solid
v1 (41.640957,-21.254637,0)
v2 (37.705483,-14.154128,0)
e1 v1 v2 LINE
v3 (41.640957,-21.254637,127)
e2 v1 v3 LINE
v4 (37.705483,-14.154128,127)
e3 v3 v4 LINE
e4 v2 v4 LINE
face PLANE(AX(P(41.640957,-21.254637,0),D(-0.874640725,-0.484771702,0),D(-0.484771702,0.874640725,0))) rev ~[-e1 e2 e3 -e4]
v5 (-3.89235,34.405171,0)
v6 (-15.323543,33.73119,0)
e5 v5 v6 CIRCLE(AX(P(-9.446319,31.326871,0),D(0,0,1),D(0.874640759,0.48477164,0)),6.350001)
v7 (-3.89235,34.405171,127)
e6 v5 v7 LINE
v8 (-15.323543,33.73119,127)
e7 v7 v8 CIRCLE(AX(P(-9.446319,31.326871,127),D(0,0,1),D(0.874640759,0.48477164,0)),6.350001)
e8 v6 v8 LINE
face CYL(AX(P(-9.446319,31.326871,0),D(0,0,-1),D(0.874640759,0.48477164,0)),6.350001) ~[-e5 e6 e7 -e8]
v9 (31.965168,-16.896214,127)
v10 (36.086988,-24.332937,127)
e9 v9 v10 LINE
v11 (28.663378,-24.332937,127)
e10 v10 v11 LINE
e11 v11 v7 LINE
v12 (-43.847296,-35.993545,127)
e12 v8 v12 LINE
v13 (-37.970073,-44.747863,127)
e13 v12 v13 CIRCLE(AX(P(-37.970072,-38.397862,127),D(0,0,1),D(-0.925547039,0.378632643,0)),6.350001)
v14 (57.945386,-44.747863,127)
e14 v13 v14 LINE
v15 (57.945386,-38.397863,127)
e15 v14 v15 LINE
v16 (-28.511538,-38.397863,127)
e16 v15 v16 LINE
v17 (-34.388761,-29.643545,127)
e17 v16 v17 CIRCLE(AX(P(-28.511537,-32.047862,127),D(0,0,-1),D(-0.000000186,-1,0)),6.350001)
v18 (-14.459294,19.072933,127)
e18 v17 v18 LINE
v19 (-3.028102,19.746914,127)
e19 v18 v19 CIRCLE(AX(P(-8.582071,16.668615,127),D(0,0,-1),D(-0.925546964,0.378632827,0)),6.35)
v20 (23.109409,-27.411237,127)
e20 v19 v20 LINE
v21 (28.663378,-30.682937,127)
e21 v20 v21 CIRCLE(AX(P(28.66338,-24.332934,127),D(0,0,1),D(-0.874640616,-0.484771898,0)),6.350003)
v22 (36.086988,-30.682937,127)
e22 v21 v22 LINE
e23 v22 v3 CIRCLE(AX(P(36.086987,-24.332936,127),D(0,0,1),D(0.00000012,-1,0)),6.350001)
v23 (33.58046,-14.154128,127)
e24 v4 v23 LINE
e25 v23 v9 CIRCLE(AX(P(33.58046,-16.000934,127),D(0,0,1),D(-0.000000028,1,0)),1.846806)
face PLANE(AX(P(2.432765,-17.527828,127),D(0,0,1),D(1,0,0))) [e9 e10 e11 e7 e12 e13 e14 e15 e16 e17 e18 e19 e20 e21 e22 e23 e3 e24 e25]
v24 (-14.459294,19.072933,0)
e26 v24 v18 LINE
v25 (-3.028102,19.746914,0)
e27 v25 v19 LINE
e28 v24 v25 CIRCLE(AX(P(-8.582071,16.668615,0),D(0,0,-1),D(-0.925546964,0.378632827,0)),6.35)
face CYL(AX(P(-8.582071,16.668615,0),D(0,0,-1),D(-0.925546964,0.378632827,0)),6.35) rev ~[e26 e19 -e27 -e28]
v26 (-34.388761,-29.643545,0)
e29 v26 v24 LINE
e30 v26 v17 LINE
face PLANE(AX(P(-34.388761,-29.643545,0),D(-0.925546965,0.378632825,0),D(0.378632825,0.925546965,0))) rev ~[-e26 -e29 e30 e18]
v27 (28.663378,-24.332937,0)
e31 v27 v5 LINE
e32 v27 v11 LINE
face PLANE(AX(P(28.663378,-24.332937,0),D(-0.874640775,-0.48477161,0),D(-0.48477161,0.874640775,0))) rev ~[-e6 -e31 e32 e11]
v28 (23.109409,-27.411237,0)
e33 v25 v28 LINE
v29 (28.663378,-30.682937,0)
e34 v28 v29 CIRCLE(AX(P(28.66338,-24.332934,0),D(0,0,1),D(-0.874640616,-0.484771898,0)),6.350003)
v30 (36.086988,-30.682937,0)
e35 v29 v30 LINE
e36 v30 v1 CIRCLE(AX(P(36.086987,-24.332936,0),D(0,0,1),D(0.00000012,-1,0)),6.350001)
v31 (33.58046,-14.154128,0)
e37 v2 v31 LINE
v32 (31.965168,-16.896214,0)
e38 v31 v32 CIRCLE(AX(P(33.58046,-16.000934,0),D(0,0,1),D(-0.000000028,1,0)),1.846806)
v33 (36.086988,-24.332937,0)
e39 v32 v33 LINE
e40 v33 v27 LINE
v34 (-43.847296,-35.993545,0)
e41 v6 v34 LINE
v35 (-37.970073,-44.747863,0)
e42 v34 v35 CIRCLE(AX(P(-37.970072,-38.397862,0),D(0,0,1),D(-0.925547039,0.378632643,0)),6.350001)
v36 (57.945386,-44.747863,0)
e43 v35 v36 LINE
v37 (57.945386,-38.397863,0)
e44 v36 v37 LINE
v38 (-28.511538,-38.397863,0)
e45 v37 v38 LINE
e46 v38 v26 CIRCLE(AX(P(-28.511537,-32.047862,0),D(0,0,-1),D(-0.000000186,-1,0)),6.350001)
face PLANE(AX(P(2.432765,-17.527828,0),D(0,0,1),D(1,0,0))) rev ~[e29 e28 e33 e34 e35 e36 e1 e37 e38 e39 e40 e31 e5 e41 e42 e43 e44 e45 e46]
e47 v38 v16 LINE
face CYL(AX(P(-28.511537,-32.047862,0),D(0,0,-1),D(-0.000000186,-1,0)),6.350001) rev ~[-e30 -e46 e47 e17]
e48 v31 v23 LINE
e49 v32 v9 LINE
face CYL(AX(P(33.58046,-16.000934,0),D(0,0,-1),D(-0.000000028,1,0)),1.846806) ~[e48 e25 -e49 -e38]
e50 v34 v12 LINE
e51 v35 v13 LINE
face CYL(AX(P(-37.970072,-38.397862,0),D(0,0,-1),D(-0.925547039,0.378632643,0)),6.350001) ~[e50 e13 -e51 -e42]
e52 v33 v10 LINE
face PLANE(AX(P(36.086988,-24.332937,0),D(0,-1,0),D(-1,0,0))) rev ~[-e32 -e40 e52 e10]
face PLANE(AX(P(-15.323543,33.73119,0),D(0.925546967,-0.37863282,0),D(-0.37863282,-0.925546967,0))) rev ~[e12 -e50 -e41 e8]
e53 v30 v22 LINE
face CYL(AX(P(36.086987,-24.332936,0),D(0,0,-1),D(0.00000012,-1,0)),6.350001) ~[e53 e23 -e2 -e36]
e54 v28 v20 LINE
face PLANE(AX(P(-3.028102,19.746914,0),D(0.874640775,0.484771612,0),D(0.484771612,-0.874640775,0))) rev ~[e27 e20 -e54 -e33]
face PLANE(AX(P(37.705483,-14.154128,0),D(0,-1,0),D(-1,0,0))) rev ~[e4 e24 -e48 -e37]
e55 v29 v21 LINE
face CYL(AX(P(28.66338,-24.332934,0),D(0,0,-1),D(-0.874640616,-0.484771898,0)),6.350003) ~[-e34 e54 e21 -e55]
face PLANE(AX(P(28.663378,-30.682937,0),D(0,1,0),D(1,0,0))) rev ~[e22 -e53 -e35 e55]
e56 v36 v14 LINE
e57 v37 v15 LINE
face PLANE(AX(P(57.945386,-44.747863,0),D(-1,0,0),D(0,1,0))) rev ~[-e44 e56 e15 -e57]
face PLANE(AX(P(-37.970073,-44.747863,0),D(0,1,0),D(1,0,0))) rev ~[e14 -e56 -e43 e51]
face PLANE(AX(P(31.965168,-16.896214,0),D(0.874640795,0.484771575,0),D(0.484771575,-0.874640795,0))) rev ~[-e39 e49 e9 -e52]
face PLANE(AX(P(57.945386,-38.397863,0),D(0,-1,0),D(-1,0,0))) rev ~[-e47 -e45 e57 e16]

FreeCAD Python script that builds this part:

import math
import FreeCAD as App
import Part
import Sketcher

V = App.Vector
Q = App.Units.Quantity

doc = App.newDocument("Part")
body = doc.addObject("PartDesign::Body", "Body")

# Sketch on XY plane
sketch1 = body.newObject("Sketcher::SketchObject", "Sketch")
sketch1.AttachmentSupport = (doc.getObject("XY_Plane"), [""])
sketch1.MapMode = "FlatFace"
sketch1.addGeometry([
    Part.LineSegment(V(-37.970073, -44.747863, 0), V(57.945386, -44.747863, 0)),  # 0
    Part.LineSegment(V(57.945386, -44.747863, 0), V(57.945386, -38.397863, 0)),  # 1
    Part.LineSegment(V(57.945386, -38.397863, 0), V(-28.511538, -38.397863, 0)),  # 2
    Part.ArcOfCircle(Part.Circle(V(-28.511537, -32.047862, 0), V(0, 0, 1), 6.350001), math.radians(157.750989), math.radians(269.999989)),  # 3
    Part.LineSegment(V(-34.388761, -29.643545, 0), V(-14.459294, 19.072933, 0)),  # 4
    Part.ArcOfCircle(Part.Circle(V(-8.582071, 16.668615, 0), V(0, 0, 1), 6.35), math.radians(28.997507), math.radians(157.750978)),  # 5
    Part.LineSegment(V(-3.028102, 19.746914, 0), V(23.109409, -27.411237, 0)),  # 6
    Part.ArcOfCircle(Part.Circle(V(28.66338, -24.332934, 0), V(0, 0, 1), 6.350003), math.radians(-151.002471), math.radians(-90.000014)),  # 7
    Part.LineSegment(V(28.663378, -30.682937, 0), V(36.086988, -30.682937, 0)),  # 8
    Part.ArcOfCircle(Part.Circle(V(36.086987, -24.332936, 0), V(0, 0, 1), 6.350001), math.radians(-89.999993), math.radians(28.997504)),  # 9
    Part.LineSegment(V(41.640957, -21.254637, 0), V(37.705483, -14.154128, 0)),  # 10
    Part.LineSegment(V(37.705483, -14.154128, 0), V(33.58046, -14.154128, 0)),  # 11
    Part.ArcOfCircle(Part.Circle(V(33.58046, -16.000934, 0), V(0, 0, 1), 1.846806), math.radians(90.000002), math.radians(208.997519)),  # 12
    Part.LineSegment(V(31.965168, -16.896214, 0), V(36.086988, -24.332937, 0)),  # 13
    Part.LineSegment(V(36.086988, -24.332937, 0), V(28.663378, -24.332937, 0)),  # 14
    Part.LineSegment(V(28.663378, -24.332937, 0), V(-3.89235, 34.405171, 0)),  # 15
    Part.ArcOfCircle(Part.Circle(V(-9.446319, 31.326871, 0), V(0, 0, 1), 6.350001), math.radians(28.997512), math.radians(157.750972)),  # 16
    Part.LineSegment(V(-15.323543, 33.73119, 0), V(-43.847296, -35.993545, 0)),  # 17
    Part.ArcOfCircle(Part.Circle(V(-37.970072, -38.397862, 0), V(0, 0, 1), 6.350001), math.radians(157.750989), math.radians(269.999989)),  # 18
], False)
sketch1.addConstraint([
    Sketcher.Constraint("Coincident", 0, 2, 1, 1),
    Sketcher.Constraint("Coincident", 1, 2, 2, 1),
    Sketcher.Constraint("Coincident", 2, 2, 3, 2),
    Sketcher.Constraint("Coincident", 3, 1, 4, 1),
    Sketcher.Constraint("Coincident", 4, 2, 5, 2),
    Sketcher.Constraint("Coincident", 5, 1, 6, 1),
    Sketcher.Constraint("Coincident", 6, 2, 7, 1),
    Sketcher.Constraint("Coincident", 7, 2, 8, 1),
    Sketcher.Constraint("Coincident", 8, 2, 9, 1),
    Sketcher.Constraint("Coincident", 9, 2, 10, 1),
    Sketcher.Constraint("Coincident", 10, 2, 11, 1),
    Sketcher.Constraint("Coincident", 11, 2, 12, 1),
    Sketcher.Constraint("Coincident", 12, 2, 13, 1),
    Sketcher.Constraint("Coincident", 13, 2, 14, 1),
    Sketcher.Constraint("Coincident", 14, 2, 15, 1),
    Sketcher.Constraint("Coincident", 15, 2, 16, 1),
    Sketcher.Constraint("Coincident", 16, 2, 17, 1),
    Sketcher.Constraint("Coincident", 17, 2, 18, 1),
    Sketcher.Constraint("Coincident", 18, 2, 0, 1),
    Sketcher.Constraint("Horizontal", 0),
    Sketcher.Constraint("Vertical", 1),
    Sketcher.Constraint("Horizontal", 2),
    Sketcher.Constraint("Horizontal", 8),
    Sketcher.Constraint("Horizontal", 11),
    Sketcher.Constraint("Horizontal", 14),
    Sketcher.Constraint("Coincident", 13, 2, 9, 3),
    Sketcher.Constraint("Coincident", 14, 2, 7, 3),
    Sketcher.Constraint("Radius", 3, Q("0.25 in")),
    Sketcher.Constraint("Radius", 5, Q("0.25 in")),
    Sketcher.Constraint("Radius", 7, Q("0.2500001 in")),
    Sketcher.Constraint("Radius", 16, Q("0.25 in")),
    Sketcher.Constraint("Radius", 18, Q("0.25 in")),
    Sketcher.Constraint("DistanceY", 1, 1, 1, 2, Q("0.25 in")),
    Sketcher.Constraint("DistanceY", 17, 2, 3, 1, Q("0.25 in")),
    Sketcher.Constraint("Radius", 12, Q("1.846806 mm")),
    Sketcher.Constraint("Distance", 10, Q("8.118201 mm")),
    Sketcher.Constraint("DistanceX", 0, 1, 0, 2, Q("95.915459 mm")),
    Sketcher.Constraint("DistanceX", 8, 1, 8, 2, Q("7.42361 mm")),
    Sketcher.Constraint("DistanceX", 14, 2, 14, 1, Q("7.42361 mm")),
    Sketcher.Constraint("DistanceY", 7, 3, 12, 3, Q("8.332 mm")),
    Sketcher.Constraint("DistanceX", 16, 3, 7, 3, Q("38.109699 mm")),
    Sketcher.Constraint("DistanceX", 18, 3, 5, 3, Q("29.388001 mm")),
    Sketcher.Constraint("DistanceX", 9, 3, 0, 2, Q("21.858399 mm")),
    Sketcher.Constraint("DistanceX", 2, 2, 12, 3, Q("62.091998 mm")),
    Sketcher.Constraint("DistanceY", 5, 3, 5, 1, Q("3.078299 mm")),
    Sketcher.Constraint("DistanceY", 6, 2, 9, 3, Q("3.078301 mm")),
    Sketcher.Constraint("DistanceY", 9, 3, 9, 2, Q("3.078299 mm")),
    Sketcher.Constraint("DistanceY", 16, 3, 15, 2, Q("3.0783 mm")),
    Sketcher.Constraint("DistanceY", 11, 2, 15, 2, Q("48.559299 mm")),
    Sketcher.Constraint("DistanceX", 17, 2, 4, 2, Q("29.388002 mm")),
    Sketcher.Constraint("Distance", 4, Q("52.635339 mm")),
    Sketcher.Constraint("DistanceX", 2, 2, 2, 1, Q("86.456924 mm")),
    Sketcher.Constraint("DistanceX", 11, 2, 11, 1, Q("4.125023 mm")),
    Sketcher.Constraint("DistanceX", 5, 3, -1, 1, Q("8.582071 mm")),
    Sketcher.Constraint("DistanceX", -1, 1, 7, 3, Q("28.66338 mm")),
    Sketcher.Constraint("DistanceY", -1, 1, 16, 3, Q("31.326871 mm")),
    Sketcher.Constraint("DistanceX", 3, 1, -1, 1, Q("34.388761 mm")),
    Sketcher.Constraint("DistanceX", -1, 1, 7, 2, Q("28.663378 mm")),
    Sketcher.Constraint("DistanceY", -1, 1, 16, 2, Q("33.73119 mm")),
    Sketcher.Constraint("DistanceY", 7, 3, 5, 3, Q("41.001549 mm")),
    Sketcher.Constraint("DistanceY", 3, 3, 7, 3, Q("7.714928 mm")),
    Sketcher.Constraint("DistanceY", 12, 2, 12, 3, Q("0.89528 mm")),
])
pad1 = body.newObject("PartDesign::Pad", "Pad")
pad1.Profile = sketch1
pad1.Length = Q("5 in")

doc.recompute()
